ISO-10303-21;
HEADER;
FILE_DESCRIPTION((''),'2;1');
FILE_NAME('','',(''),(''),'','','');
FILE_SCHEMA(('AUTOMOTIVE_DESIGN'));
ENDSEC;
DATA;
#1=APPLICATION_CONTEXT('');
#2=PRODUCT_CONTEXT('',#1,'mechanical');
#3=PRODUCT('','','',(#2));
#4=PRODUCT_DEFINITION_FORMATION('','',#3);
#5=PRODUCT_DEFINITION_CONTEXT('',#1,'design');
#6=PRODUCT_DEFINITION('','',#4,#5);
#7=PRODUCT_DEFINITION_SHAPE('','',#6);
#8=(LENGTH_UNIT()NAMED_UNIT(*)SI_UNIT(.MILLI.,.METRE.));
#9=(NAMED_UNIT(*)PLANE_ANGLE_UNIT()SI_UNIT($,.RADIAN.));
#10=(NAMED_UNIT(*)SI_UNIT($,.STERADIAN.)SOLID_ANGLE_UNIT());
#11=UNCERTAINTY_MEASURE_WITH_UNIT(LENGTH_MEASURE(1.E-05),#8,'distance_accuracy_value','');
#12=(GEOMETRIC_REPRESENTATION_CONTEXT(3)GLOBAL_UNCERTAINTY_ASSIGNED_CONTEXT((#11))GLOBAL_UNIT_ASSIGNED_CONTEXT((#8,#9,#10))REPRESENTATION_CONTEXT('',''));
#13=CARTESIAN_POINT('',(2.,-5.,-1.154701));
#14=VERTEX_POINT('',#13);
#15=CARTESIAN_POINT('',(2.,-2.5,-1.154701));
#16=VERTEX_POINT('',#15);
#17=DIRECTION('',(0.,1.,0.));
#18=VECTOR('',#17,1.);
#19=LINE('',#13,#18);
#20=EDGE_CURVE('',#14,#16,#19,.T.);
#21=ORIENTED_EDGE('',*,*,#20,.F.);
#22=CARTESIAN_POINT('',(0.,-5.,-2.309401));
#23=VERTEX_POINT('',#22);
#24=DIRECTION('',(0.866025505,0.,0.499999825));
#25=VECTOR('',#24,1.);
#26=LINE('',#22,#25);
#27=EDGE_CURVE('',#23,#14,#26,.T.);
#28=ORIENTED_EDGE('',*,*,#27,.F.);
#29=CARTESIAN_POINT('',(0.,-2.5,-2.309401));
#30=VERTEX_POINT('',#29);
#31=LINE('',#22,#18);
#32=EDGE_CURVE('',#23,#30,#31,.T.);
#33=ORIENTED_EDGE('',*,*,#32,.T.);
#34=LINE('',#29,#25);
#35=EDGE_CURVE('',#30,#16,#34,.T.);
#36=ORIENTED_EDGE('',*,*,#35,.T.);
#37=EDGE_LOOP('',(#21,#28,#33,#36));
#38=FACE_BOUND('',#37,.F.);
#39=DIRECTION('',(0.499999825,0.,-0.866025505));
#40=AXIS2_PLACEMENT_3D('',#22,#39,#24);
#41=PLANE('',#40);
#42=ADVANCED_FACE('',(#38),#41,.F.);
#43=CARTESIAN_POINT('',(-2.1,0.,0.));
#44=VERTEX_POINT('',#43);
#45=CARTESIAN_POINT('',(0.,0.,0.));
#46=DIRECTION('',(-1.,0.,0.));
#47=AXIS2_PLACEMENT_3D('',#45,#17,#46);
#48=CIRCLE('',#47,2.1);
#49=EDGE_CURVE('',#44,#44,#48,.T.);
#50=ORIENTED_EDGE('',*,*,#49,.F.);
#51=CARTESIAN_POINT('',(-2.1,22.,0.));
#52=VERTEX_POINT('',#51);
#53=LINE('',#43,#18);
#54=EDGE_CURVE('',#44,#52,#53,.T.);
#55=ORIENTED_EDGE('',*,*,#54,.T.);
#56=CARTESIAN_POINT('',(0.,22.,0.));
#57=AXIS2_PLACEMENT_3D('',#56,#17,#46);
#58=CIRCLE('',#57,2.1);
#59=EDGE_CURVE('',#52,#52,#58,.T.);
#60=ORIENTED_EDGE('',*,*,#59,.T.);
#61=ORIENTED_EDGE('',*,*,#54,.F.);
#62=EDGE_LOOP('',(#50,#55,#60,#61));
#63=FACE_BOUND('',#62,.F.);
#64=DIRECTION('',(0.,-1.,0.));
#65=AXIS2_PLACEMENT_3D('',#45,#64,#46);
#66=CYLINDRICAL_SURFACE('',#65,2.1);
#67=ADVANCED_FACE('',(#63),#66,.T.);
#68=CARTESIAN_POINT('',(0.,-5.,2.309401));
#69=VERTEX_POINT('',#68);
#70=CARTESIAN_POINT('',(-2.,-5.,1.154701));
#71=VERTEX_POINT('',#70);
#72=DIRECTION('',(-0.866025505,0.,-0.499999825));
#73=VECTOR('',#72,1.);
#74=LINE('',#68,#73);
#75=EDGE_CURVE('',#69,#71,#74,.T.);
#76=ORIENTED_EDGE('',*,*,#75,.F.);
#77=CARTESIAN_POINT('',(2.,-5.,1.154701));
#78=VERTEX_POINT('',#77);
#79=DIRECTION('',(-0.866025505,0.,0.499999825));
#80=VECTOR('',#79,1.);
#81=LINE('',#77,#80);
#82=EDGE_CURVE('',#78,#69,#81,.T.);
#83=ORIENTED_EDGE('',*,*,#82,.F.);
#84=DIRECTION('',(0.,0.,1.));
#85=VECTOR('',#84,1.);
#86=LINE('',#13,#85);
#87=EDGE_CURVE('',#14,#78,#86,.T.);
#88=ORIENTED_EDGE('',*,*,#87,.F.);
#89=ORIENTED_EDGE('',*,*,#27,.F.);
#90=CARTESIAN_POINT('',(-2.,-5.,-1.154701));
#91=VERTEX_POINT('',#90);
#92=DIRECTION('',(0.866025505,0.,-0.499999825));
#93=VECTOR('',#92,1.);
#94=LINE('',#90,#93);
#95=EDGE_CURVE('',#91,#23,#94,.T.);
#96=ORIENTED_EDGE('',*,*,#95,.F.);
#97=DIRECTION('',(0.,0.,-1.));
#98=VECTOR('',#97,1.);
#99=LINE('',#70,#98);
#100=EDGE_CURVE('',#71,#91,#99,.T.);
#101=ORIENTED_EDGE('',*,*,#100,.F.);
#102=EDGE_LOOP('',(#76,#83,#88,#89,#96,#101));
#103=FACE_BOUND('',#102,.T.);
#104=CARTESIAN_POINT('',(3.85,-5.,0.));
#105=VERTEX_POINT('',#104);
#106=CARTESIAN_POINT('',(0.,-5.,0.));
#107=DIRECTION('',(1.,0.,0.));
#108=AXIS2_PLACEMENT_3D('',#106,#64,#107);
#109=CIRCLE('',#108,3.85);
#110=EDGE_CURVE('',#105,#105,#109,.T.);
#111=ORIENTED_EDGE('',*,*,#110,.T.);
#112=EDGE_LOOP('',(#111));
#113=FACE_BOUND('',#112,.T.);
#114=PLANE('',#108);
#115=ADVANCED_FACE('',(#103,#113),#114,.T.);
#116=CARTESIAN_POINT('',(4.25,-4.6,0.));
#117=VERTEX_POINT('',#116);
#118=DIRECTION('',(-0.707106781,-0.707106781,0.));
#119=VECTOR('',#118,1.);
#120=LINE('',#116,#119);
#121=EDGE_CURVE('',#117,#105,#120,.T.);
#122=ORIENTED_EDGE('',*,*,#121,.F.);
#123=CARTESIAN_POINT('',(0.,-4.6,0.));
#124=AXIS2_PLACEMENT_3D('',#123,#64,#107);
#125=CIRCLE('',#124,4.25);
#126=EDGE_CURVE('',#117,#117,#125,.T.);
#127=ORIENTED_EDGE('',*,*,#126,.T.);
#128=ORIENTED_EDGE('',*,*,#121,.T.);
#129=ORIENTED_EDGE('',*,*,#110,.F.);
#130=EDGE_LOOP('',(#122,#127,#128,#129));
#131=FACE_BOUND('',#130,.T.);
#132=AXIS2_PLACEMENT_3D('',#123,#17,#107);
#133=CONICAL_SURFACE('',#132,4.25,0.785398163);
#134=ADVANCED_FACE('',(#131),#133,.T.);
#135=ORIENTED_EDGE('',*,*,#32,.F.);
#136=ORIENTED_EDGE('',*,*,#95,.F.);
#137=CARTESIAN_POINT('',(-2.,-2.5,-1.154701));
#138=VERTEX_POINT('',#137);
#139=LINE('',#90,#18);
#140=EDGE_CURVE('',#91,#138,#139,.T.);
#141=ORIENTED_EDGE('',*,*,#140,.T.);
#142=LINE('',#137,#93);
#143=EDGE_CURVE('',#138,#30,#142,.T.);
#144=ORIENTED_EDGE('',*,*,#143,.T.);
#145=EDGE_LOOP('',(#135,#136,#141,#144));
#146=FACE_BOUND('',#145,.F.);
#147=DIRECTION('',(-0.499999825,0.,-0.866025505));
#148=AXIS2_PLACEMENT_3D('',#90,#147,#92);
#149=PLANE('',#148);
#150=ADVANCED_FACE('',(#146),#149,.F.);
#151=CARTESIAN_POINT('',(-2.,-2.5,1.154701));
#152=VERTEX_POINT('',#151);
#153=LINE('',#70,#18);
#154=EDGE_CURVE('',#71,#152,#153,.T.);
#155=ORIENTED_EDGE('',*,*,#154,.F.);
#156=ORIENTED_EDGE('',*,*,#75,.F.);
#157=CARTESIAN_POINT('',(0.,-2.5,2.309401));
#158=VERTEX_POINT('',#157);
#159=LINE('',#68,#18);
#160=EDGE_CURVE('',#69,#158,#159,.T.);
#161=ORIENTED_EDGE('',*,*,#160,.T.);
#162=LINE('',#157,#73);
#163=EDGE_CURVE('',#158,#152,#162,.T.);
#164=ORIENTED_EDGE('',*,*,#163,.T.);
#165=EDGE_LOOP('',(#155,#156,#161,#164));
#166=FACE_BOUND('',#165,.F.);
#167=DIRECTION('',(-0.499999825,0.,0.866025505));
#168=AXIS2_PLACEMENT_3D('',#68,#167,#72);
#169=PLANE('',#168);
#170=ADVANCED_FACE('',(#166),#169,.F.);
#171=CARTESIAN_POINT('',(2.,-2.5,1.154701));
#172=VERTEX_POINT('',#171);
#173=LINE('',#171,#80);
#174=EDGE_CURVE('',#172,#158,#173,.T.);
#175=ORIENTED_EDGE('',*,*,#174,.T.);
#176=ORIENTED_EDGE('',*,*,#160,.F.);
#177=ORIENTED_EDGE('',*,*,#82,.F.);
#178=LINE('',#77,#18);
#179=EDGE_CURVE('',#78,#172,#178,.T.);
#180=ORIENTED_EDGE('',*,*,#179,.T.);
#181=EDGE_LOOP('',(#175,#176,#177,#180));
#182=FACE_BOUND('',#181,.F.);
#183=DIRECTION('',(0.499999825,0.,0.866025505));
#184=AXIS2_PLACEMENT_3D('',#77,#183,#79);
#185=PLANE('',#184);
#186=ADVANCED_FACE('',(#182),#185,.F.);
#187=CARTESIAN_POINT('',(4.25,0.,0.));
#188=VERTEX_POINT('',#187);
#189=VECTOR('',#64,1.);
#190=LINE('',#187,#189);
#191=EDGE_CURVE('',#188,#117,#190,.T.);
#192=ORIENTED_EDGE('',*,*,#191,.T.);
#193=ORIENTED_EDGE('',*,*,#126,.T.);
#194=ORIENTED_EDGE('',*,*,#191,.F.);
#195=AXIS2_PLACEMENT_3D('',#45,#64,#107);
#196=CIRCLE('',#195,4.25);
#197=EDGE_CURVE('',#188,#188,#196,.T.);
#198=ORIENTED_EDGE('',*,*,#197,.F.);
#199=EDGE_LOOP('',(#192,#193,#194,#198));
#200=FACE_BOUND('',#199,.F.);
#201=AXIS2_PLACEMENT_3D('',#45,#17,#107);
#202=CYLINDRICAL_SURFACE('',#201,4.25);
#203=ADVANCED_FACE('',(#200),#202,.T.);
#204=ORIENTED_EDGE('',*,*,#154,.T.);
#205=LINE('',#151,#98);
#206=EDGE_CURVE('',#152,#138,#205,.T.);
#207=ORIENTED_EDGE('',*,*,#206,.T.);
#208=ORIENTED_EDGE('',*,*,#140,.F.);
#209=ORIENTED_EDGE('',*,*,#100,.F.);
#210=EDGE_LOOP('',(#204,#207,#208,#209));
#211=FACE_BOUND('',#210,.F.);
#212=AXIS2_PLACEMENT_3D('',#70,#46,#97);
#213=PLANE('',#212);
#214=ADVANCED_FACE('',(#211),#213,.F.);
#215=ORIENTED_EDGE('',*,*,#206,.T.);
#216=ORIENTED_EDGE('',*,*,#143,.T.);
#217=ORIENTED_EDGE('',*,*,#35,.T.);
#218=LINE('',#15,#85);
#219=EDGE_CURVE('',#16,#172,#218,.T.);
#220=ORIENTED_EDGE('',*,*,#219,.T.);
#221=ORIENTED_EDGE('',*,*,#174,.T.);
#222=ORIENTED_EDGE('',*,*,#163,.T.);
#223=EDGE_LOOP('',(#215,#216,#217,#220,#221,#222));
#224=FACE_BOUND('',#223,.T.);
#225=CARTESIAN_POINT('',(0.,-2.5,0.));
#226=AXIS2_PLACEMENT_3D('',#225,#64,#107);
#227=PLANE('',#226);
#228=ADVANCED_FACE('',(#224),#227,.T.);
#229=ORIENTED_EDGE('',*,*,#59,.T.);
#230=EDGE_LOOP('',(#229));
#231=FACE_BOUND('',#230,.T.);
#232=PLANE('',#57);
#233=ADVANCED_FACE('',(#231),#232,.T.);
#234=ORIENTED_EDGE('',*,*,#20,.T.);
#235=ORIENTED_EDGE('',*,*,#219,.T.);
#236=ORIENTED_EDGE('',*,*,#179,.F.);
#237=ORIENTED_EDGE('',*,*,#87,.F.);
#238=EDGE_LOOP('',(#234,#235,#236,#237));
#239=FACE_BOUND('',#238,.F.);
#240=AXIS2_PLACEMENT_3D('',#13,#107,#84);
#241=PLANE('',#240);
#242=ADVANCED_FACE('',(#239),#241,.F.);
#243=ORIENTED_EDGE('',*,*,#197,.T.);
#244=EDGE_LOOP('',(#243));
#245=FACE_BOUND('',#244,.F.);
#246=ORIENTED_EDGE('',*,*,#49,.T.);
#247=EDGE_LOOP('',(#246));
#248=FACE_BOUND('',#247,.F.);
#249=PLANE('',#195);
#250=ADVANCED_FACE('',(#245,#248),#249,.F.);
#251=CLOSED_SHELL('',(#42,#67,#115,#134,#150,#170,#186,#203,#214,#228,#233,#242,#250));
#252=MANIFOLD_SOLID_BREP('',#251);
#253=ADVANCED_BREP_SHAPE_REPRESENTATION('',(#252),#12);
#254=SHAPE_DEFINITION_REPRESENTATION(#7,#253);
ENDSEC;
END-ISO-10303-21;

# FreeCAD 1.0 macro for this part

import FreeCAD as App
import Part
import Sketcher
Q = App.Units.Quantity


def edges_at(feature, points):
    """Names of the edges that pass closest to the given points."""
    edges = feature.Shape.Edges
    near = lambda p: min(range(len(edges)), key=lambda i: edges[i].distToShape(Part.Vertex(*p))[0])
    return sorted({f"Edge{near(p) + 1}" for p in points})

doc = App.newDocument("Part")
params = doc.addObject("Spreadsheet::Sheet", "Params")
for row, (alias, value) in enumerate([
    ("sketch1_diameter", "8.5 mm"),
    ("pad1_length", "5 mm"),
    ("sketch2_diameter", "4.2 mm"),
    ("pad2_length", "22 mm"),
    ("pocket1_length", "2.5 mm"),
    ("chamfer_size", "0.4 mm"),
], start=1):
    params.set(f"A{row}", alias)
    params.set(f"B{row}", "=" + value)
    params.setAlias(f"B{row}", alias)

body = doc.addObject("PartDesign::Body", "Body")

# Sketch on XZ plane
sketch1 = doc.addObject("Sketcher::SketchObject", "Sketch")
body.addObject(sketch1)
sketch1.AttachmentSupport = (doc.XZ_Plane, [""])
sketch1.MapMode = "FlatFace"
sketch1.addGeometry(Part.Circle(App.Vector(0, 0, 0), App.Vector(0, 0, 1), 4.2), False)
sketch1.addConstraint([
    Sketcher.Constraint("Coincident", 0, 3, -1, 1),
    Sketcher.Constraint("Diameter", 0, Q("8.5 mm")),
])
sketch1.setExpression("Constraints[1]", "Params.sketch1_diameter")
pad1 = doc.addObject("PartDesign::Pad", "Pad")
body.addObject(pad1)
pad1.Profile = sketch1
pad1.setExpression("Length", "Params.pad1_length")

# Sketch on XZ plane
sketch2 = doc.addObject("Sketcher::SketchObject", "Sketch001")
body.addObject(sketch2)
sketch2.AttachmentSupport = (doc.XZ_Plane, [""])
sketch2.MapMode = "FlatFace"
sketch2.addGeometry(Part.Circle(App.Vector(0, 0, 0), App.Vector(0, 0, 1), 2.1), False)
sketch2.addConstraint([
    Sketcher.Constraint("Coincident", 0, 3, -1, 1),
    Sketcher.Constraint("Diameter", 0, Q("4.2 mm")),
])
sketch2.setExpression("Constraints[1]", "Params.sketch2_diameter")
pad2 = doc.addObject("PartDesign::Pad", "Pad001")
body.addObject(pad2)
pad2.Profile = sketch2
pad2.setExpression("Length", "Params.pad2_length")
pad2.Reversed = True

# Sketch on XZ plane
sketch3 = doc.addObject("Sketcher::SketchObject", "Sketch002")
body.addObject(sketch3)
sketch3.AttachmentSupport = (doc.XZ_Plane, [""])
sketch3.MapMode = "FlatFace"
sketch3.AttachmentOffset = App.Placement(App.Vector(0, 0, 5), App.Rotation())
sketch3.addGeometry([
    Part.LineSegment(App.Vector(0, -2.3, 0), App.Vector(2, -1.2, 0)),  # 0
    Part.LineSegment(App.Vector(2, -1.2, 0), App.Vector(2, 1.2, 0)),  # 1
    Part.LineSegment(App.Vector(2, 1.2, 0), App.Vector(0, 2.3, 0)),  # 2
    Part.LineSegment(App.Vector(0, 2.3, 0), App.Vector(-2, 1.2, 0)),  # 3
    Part.LineSegment(App.Vector(-2, 1.2, 0), App.Vector(-2, -1.2, 0)),  # 4
    Part.LineSegment(App.Vector(-2, -1.2, 0), App.Vector(0, -2.3, 0)),  # 5
], False)
sketch3.addConstraint([
    Sketcher.Constraint("Coincident", 0, 2, 1, 1),
    Sketcher.Constraint("Coincident", 1, 2, 2, 1),
    Sketcher.Constraint("Coincident", 2, 2, 3, 1),
    Sketcher.Constraint("Coincident", 3, 2, 4, 1),
    Sketcher.Constraint("Coincident", 4, 2, 5, 1),
    Sketcher.Constraint("Coincident", 5, 2, 0, 1),
    Sketcher.Constraint("Vertical", 1),
    Sketcher.Constraint("Vertical", 4),
    Sketcher.Constraint("Symmetric", 0, 2, 3, 2, -1, 1),
    Sketcher.Constraint("Symmetric", 2, 2, 5, 2, -1, 1),
    Sketcher.Constraint("PointOnObject", 2, 2, -2),
    Sketcher.Constraint("Parallel", 2, 5),
    Sketcher.Constraint("Horizontal", 1, 2, 3, 2),
    Sketcher.Constraint("Angle", 0, Q("29.999988 deg")),
    Sketcher.Constraint("DistanceX", -1, 1, 0, 2, Q("2 mm")),
    Sketcher.Constraint("DistanceY", 1, 1, 1, 2, Q("2.309402 mm")),
])
pocket1 = doc.addObject("PartDesign::Pocket", "Pocket")
body.addObject(pocket1)
pocket1.Profile = sketch3
pocket1.setExpression("Length", "Params.pocket1_length")
doc.recompute()

chamfer = doc.addObject("PartDesign::Chamfer", "Chamfer")
body.addObject(chamfer)
chamfer.Base = (pocket1, edges_at(pocket1, [(-4.25, -5, 0)]))
chamfer.setExpression("Size", "Params.chamfer_size")

doc.recompute()
